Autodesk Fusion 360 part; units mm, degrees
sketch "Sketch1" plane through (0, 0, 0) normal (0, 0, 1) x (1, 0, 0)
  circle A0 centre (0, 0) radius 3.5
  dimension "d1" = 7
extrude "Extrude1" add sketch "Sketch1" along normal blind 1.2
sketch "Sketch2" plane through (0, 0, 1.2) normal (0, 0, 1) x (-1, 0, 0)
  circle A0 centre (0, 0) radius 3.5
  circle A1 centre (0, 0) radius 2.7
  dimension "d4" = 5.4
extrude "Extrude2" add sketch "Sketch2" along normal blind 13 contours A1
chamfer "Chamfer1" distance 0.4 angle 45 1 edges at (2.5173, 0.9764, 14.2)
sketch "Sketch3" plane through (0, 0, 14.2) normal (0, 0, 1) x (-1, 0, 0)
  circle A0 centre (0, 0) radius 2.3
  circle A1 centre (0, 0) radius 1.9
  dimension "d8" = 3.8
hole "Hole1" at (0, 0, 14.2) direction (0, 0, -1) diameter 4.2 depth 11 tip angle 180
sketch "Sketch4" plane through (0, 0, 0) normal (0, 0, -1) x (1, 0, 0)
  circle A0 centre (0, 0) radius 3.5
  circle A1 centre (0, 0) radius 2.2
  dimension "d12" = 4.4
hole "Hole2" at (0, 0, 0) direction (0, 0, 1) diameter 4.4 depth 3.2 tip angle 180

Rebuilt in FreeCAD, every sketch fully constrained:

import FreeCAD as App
import Part
import Sketcher

V = App.Vector
Q = App.Units.Quantity


def edges_at(feature, points):
    """Names of the edges that pass closest to the given points."""
    edges = feature.Shape.Edges
    near = lambda p: min(range(len(edges)), key=lambda i: edges[i].distToShape(Part.Vertex(*p))[0])
    return sorted({f"Edge{near(p) + 1}" for p in points})

doc = App.newDocument("Part")
params = doc.addObject("Spreadsheet::Sheet", "Params")
for row, (alias, value) in enumerate([
    ("sketch1_diameter", "7 mm"),
    ("pad1_length", "1.2 mm"),
    ("sketch2_diameter", "5.4 mm"),
    ("pad2_length", "13 mm"),
    ("chamfer_size", "0.4 mm"),
    ("sketch3_diameter", "4.2 mm"),
    ("hole_diameter", "4.2 mm"),
    ("hole_depth", "11 mm"),
    ("sketch4_diameter", "4.4 mm"),
    ("hole2_diameter", "4.4 mm"),
    ("hole2_depth", "3.2 mm"),
], start=1):
    params.set(f"A{row}", alias)
    params.set(f"B{row}", "=" + value)
    params.setAlias(f"B{row}", alias)

body = doc.addObject("PartDesign::Body", "Body")

# Sketch on XY plane
sketch1 = doc.addObject("Sketcher::SketchObject", "Sketch")
body.addObject(sketch1)
sketch1.AttachmentSupport = (doc.XY_Plane, [""])
sketch1.MapMode = "FlatFace"
sketch1.addGeometry(Part.Circle(V(0, 0, 0), V(0, 0, 1), 3.5), False)
sketch1.addConstraint(Sketcher.Constraint("Coincident", 0, 3, -1, 1))
sketch1.addConstraint(Sketcher.Constraint("Diameter", 0, Q("7 mm")))
sketch1.setExpression("Constraints[1]", "Params.sketch1_diameter")
pad1 = doc.addObject("PartDesign::Pad", "Pad")
body.addObject(pad1)
pad1.Profile = sketch1
pad1.setExpression("Length", "Params.pad1_length")

# Sketch on XY plane
sketch2 = doc.addObject("Sketcher::SketchObject", "Sketch001")
body.addObject(sketch2)
sketch2.AttachmentSupport = (doc.XY_Plane, [""])
sketch2.MapMode = "FlatFace"
sketch2.AttachmentOffset = App.Placement(V(0, 0, 1.2), App.Rotation())
sketch2.addGeometry(Part.Circle(V(0, 0, 0), V(0, 0, 1), 2.7), False)
sketch2.addConstraint(Sketcher.Constraint("Coincident", 0, 3, -1, 1))
sketch2.addConstraint(Sketcher.Constraint("Diameter", 0, Q("5.4 mm")))
sketch2.setExpression("Constraints[1]", "Params.sketch2_diameter")
pad2 = doc.addObject("PartDesign::Pad", "Pad001")
body.addObject(pad2)
pad2.Profile = sketch2
pad2.setExpression("Length", "Params.pad2_length")
doc.recompute()

chamfer = doc.addObject("PartDesign::Chamfer", "Chamfer")
body.addObject(chamfer)
chamfer.Base = (pad2, edges_at(pad2, [(2.517, 0.976, 14.2)]))
chamfer.setExpression("Size", "Params.chamfer_size")

# Sketch on XY plane
sketch3 = doc.addObject("Sketcher::SketchObject", "Sketch002")
body.addObject(sketch3)
sketch3.AttachmentSupport = (doc.XY_Plane, [""])
sketch3.MapMode = "FlatFace"
sketch3.AttachmentOffset = App.Placement(V(0, 0, 14.2), App.Rotation())
sketch3.addGeometry(Part.Circle(V(0, 0, 0), V(0, 0, 1), 2.1), False)
sketch3.addConstraint(Sketcher.Constraint("Coincident", 0, 3, -1, 1))
sketch3.addConstraint(Sketcher.Constraint("Diameter", 0, Q("4.2 mm")))
sketch3.setExpression("Constraints[1]", "Params.sketch3_diameter")
doc.recompute()
hole = doc.addObject("PartDesign::Hole", "Hole")
body.addObject(hole)
hole.Profile = sketch3
hole.ThreadType = "None"
hole.setExpression("Diameter", "Params.hole_diameter")
hole.DepthType = "Dimension"
hole.setExpression("Depth", "Params.hole_depth")
hole.DrillPoint = "Flat"

# Sketch on XY plane
sketch4 = doc.addObject("Sketcher::SketchObject", "Sketch003")
body.addObject(sketch4)
sketch4.AttachmentSupport = (doc.XY_Plane, [""])
sketch4.MapMode = "FlatFace"
sketch4.addGeometry(Part.Circle(V(0, 0, 0), V(0, 0, 1), 2.2), False)
sketch4.addConstraint(Sketcher.Constraint("Coincident", 0, 3, -1, 1))
sketch4.addConstraint(Sketcher.Constraint("Diameter", 0, Q("4.4 mm")))
sketch4.setExpression("Constraints[1]", "Params.sketch4_diameter")
doc.recompute()
hole2 = doc.addObject("PartDesign::Hole", "Hole001")
body.addObject(hole2)
hole2.Profile = sketch4
hole2.ThreadType = "None"
hole2.setExpression("Diameter", "Params.hole2_diameter")
hole2.DepthType = "Dimension"
hole2.setExpression("Depth", "Params.hole2_depth")
hole2.DrillPoint = "Flat"
hole2.Reversed = True

doc.recompute()
